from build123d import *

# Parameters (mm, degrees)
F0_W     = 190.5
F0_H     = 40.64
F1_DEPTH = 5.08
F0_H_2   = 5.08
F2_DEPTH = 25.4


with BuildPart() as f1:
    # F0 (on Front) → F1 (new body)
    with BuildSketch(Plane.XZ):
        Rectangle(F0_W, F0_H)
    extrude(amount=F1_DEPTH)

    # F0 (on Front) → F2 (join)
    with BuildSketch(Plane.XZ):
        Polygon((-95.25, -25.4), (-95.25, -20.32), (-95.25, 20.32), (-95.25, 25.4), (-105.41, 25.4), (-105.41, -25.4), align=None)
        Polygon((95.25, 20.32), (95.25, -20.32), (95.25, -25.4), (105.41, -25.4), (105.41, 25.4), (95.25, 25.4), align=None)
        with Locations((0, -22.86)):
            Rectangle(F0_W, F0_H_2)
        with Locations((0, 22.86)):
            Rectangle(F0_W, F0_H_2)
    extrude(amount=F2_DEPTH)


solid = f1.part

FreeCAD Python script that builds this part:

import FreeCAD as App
import Part
import Sketcher

V = App.Vector
Q = App.Units.Quantity

doc = App.newDocument("Part")
body = doc.addObject("PartDesign::Body", "Body")

sketch1 = doc.addObject("Sketcher::SketchObject", "Sketch")
body.addObject(sketch1)
sketch1.AttachmentSupport = (doc.XZ_Plane, [""])
sketch1.MapMode = "FlatFace"
sketch1.addGeometry([
    Part.LineSegment(V(-95, 20, 0), V(-95, -20, 0)),
    Part.LineSegment(V(-95, -20, 0), V(95, -20, 0)),
    Part.LineSegment(V(95, -20, 0), V(95, 20, 0)),
    Part.LineSegment(V(95, 20, 0), V(-95, 20, 0)),
], False)
sketch1.addConstraint([
    Sketcher.Constraint("Coincident", 0, 2, 1, 1),
    Sketcher.Constraint("Coincident", 1, 2, 2, 1),
    Sketcher.Constraint("Coincident", 2, 2, 3, 1),
    Sketcher.Constraint("Coincident", 3, 2, 0, 1),
    Sketcher.Constraint("Vertical", 0),
    Sketcher.Constraint("Horizontal", 1),
    Sketcher.Constraint("Vertical", 2),
    Sketcher.Constraint("Horizontal", 3),
    Sketcher.Constraint("Symmetric", 0, 2, 2, 2, -1, 1),
    Sketcher.Constraint("DistanceX", 1, 1, 1, 2, Q("7.5 in")),
    Sketcher.Constraint("DistanceY", 0, 2, 0, 1, Q("1.6 in")),
])
pad1 = doc.addObject("PartDesign::Pad", "Pad")
body.addObject(pad1)
pad1.Profile = sketch1
pad1.Length = Q("0.2 in")

sketch2 = doc.addObject("Sketcher::SketchObject", "Sketch001")
body.addObject(sketch2)
sketch2.AttachmentSupport = (doc.XZ_Plane, [""])
sketch2.MapMode = "FlatFace"
sketch2.addGeometry([
    Part.LineSegment(V(-105, 25, 0), V(-105, -25, 0)),
    Part.LineSegment(V(-105, -25, 0), V(105, -25, 0)),
    Part.LineSegment(V(105, -25, 0), V(105, 25, 0)),
    Part.LineSegment(V(105, 25, 0), V(-105, 25, 0)),
    Part.LineSegment(V(-95, -20, 0), V(-95, 20, 0)),
    Part.LineSegment(V(-95, 20, 0), V(95, 20, 0)),
    Part.LineSegment(V(95, 20, 0), V(95, -20, 0)),
    Part.LineSegment(V(95, -20, 0), V(-95, -20, 0)),
], False)
sketch2.addConstraint([
    Sketcher.Constraint("Coincident", 0, 2, 1, 1),
    Sketcher.Constraint("Coincident", 1, 2, 2, 1),
    Sketcher.Constraint("Coincident", 2, 2, 3, 1),
    Sketcher.Constraint("Coincident", 3, 2, 0, 1),
    Sketcher.Constraint("Coincident", 4, 2, 5, 1),
    Sketcher.Constraint("Coincident", 5, 2, 6, 1),
    Sketcher.Constraint("Coincident", 6, 2, 7, 1),
    Sketcher.Constraint("Coincident", 7, 2, 4, 1),
    Sketcher.Constraint("Vertical", 0),
    Sketcher.Constraint("Horizontal", 1),
    Sketcher.Constraint("Vertical", 2),
    Sketcher.Constraint("Horizontal", 3),
    Sketcher.Constraint("Vertical", 4),
    Sketcher.Constraint("Horizontal", 5),
    Sketcher.Constraint("Vertical", 6),
    Sketcher.Constraint("Horizontal", 7),
    Sketcher.Constraint("Symmetric", 0, 2, 2, 2, -1, 1),
    Sketcher.Constraint("Symmetric", 4, 2, 6, 2, -1, 1),
    Sketcher.Constraint("DistanceY", 0, 2, 0, 1, Q("2 in")),
    Sketcher.Constraint("DistanceX", 1, 1, 1, 2, Q("8.3 in")),
    Sketcher.Constraint("DistanceX", 5, 1, 5, 2, Q("7.5 in")),
    Sketcher.Constraint("DistanceY", 4, 1, 4, 2, Q("1.6 in")),
])
pad2 = doc.addObject("PartDesign::Pad", "Pad001")
body.addObject(pad2)
pad2.Profile = sketch2
pad2.Length = Q("1 in")

doc.recompute()
